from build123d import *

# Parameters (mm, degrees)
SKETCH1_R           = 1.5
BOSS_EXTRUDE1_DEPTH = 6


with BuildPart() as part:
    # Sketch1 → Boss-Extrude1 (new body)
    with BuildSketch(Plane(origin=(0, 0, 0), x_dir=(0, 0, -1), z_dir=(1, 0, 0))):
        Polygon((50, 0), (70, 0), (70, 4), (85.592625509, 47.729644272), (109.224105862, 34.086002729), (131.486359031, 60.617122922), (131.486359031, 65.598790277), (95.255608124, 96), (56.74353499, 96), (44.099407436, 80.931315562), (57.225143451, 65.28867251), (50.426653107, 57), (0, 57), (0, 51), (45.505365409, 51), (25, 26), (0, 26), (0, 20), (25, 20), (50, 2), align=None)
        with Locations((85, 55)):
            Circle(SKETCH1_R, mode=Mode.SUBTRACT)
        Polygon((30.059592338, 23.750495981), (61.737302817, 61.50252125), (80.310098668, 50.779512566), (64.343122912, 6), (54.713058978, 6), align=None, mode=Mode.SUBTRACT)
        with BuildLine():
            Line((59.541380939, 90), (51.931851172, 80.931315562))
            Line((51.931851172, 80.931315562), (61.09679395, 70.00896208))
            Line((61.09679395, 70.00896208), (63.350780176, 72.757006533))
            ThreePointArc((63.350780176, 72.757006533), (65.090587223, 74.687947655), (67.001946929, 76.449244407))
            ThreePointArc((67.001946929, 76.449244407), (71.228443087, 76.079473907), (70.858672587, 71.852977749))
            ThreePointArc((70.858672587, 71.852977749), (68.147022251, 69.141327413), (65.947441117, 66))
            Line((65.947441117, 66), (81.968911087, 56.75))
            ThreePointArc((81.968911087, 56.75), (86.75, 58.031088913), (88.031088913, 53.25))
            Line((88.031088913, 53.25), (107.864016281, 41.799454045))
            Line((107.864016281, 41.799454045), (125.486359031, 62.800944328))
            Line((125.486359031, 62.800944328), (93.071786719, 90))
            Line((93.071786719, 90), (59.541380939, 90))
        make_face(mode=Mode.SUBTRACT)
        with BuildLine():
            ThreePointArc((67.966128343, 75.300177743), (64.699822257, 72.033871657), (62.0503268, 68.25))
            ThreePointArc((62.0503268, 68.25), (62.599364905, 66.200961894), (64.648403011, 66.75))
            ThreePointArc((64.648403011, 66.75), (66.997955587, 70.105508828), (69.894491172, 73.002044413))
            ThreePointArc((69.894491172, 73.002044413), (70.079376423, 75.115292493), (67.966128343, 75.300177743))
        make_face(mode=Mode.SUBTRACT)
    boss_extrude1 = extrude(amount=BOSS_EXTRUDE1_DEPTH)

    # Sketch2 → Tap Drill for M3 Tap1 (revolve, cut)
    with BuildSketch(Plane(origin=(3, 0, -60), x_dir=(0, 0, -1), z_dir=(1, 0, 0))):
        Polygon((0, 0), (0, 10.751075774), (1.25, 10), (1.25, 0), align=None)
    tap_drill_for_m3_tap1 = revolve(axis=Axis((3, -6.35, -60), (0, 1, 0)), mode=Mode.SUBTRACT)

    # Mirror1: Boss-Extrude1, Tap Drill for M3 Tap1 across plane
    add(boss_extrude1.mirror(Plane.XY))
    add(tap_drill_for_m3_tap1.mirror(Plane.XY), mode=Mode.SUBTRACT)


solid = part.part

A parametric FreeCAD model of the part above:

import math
import FreeCAD as App
import Part
import Sketcher

V = App.Vector
Q = App.Units.Quantity

doc = App.newDocument("Part")
body = doc.addObject("PartDesign::Body", "Body")

# Sketch on YZ plane
sketch1 = body.newObject("Sketcher::SketchObject", "Sketch")
sketch1.AttachmentSupport = (doc.getObject("YZ_Plane"), [""])
sketch1.MapMode = "FlatFace"
sketch1.addGeometry(Part.LineSegment(V(0, -50, 0), V(0, -70, 0)), False)
sketch1.addGeometry(Part.LineSegment(V(0, -70, 0), V(4, -70, 0)), False)
sketch1.addGeometry(Part.LineSegment(V(4, -70, 0), V(47.7, -85.6, 0)), False)
sketch1.addGeometry(Part.LineSegment(V(47.7, -85.6, 0), V(34.1, -109.2, 0)), False)
sketch1.addGeometry(Part.LineSegment(V(34.1, -109.2, 0), V(60.6, -131.5, 0)), False)
sketch1.addGeometry(Part.LineSegment(V(60.6, -131.5, 0), V(65.6, -131.5, 0)), False)
sketch1.addGeometry(Part.LineSegment(V(65.6, -131.5, 0), V(96, -95.3, 0)), False)
sketch1.addGeometry(Part.LineSegment(V(96, -95.3, 0), V(96, -56.7, 0)), False)
sketch1.addGeometry(Part.LineSegment(V(96, -56.7, 0), V(80.9, -44.1, 0)), False)
sketch1.addGeometry(Part.LineSegment(V(80.9, -44.1, 0), V(65.3, -57.2, 0)), False)
sketch1.addGeometry(Part.LineSegment(V(65.3, -57.2, 0), V(57, -50.4, 0)), False)
sketch1.addGeometry(Part.LineSegment(V(57, -50.4, 0), V(57, 0, 0)), False)
sketch1.addGeometry(Part.LineSegment(V(57, 0, 0), V(51, 0, 0)), False)
sketch1.addGeometry(Part.LineSegment(V(51, 0, 0), V(51, -45.5, 0)), False)
sketch1.addGeometry(Part.LineSegment(V(51, -45.5, 0), V(26, -25, 0)), False)
sketch1.addGeometry(Part.LineSegment(V(26, -25, 0), V(26, 0, 0)), False)
sketch1.addGeometry(Part.LineSegment(V(26, 0, 0), V(20, 0, 0)), False)
sketch1.addGeometry(Part.LineSegment(V(20, 0, 0), V(20, -25, 0)), False)
sketch1.addGeometry(Part.LineSegment(V(20, -25, 0), V(2, -50, 0)), False)
sketch1.addGeometry(Part.LineSegment(V(2, -50, 0), V(0, -50, 0)), False)
sketch1.addGeometry(Part.LineSegment(V(6, -54.7, 0), V(23.8, -30.1, 0)), False)
sketch1.addGeometry(Part.LineSegment(V(23.8, -30.1, 0), V(61.5, -61.7, 0)), False)
sketch1.addGeometry(Part.LineSegment(V(61.5, -61.7, 0), V(50.8, -80.3, 0)), False)
sketch1.addGeometry(Part.LineSegment(V(50.8, -80.3, 0), V(6, -64.3, 0)), False)
sketch1.addGeometry(Part.LineSegment(V(6, -64.3, 0), V(6, -54.7, 0)), False)
sketch1.addGeometry(Part.ArcOfCircle(Part.Circle(V(55, -85, 0), V(0, 0, 1), 26.5), math.radians(40), math.radians(60)), False)
sketch1.addGeometry(Part.ArcOfCircle(Part.Circle(V(74.2, -68.9, 0), V(0, 0, 1), 1.5), math.radians(-140), math.radians(40)), False)
sketch1.addGeometry(Part.ArcOfCircle(Part.Circle(V(55, -85, 0), V(0, 0, 1), 23.5), math.radians(40), math.radians(60)), False)
sketch1.addGeometry(Part.ArcOfCircle(Part.Circle(V(67.5, -63.3, 0), V(0, 0, 1), 1.5), math.radians(60), math.radians(240)), False)
sketch1.addGeometry(Part.Circle(V(55, -85, 0), V(0, 0, 1), 1.5), False)
sketch1.addGeometry(Part.LineSegment(V(80.9, -51.9, 0), V(90, -59.5, 0)), False)
sketch1.addGeometry(Part.LineSegment(V(90, -59.5, 0), V(90, -93.1, 0)), False)
sketch1.addGeometry(Part.LineSegment(V(90, -93.1, 0), V(62.8, -125.5, 0)), False)
sketch1.addGeometry(Part.LineSegment(V(62.8, -125.5, 0), V(41.8, -107.9, 0)), False)
sketch1.addGeometry(Part.LineSegment(V(41.8, -107.9, 0), V(53.2, -88, 0)), False)
sketch1.addGeometry(Part.ArcOfCircle(Part.Circle(V(55, -85, 0), V(0, 0, 1), 3.5), math.radians(-120), math.radians(60)), False)
sketch1.addGeometry(Part.LineSegment(V(56.8, -82, 0), V(66, -65.9, 0)), False)
sketch1.addGeometry(Part.ArcOfCircle(Part.Circle(V(55, -85, 0), V(0, 0, 1), 22), math.radians(40), math.radians(60)), False)
sketch1.addGeometry(Part.ArcOfCircle(Part.Circle(V(74.2, -68.9, 0), V(0, 0, 1), 3), math.radians(-140), math.radians(40)), False)
sketch1.addGeometry(Part.ArcOfCircle(Part.Circle(V(55, -85, 0), V(0, 0, 1), 28), math.radians(40), math.radians(50.64)), False)
sketch1.addGeometry(Part.LineSegment(V(72.8, -63.4, 0), V(70, -61.1, 0)), False)
sketch1.addGeometry(Part.LineSegment(V(70, -61.1, 0), V(80.9, -51.9, 0)), False)
sketch1.addConstraint(Sketcher.Constraint("Coincident", 0, 2, 1, 1))
sketch1.addConstraint(Sketcher.Constraint("Coincident", 1, 2, 2, 1))
sketch1.addConstraint(Sketcher.Constraint("Coincident", 2, 2, 3, 1))
sketch1.addConstraint(Sketcher.Constraint("Coincident", 3, 2, 4, 1))
sketch1.addConstraint(Sketcher.Constraint("Coincident", 4, 2, 5, 1))
sketch1.addConstraint(Sketcher.Constraint("Coincident", 5, 2, 6, 1))
sketch1.addConstraint(Sketcher.Constraint("Coincident", 6, 2, 7, 1))
sketch1.addConstraint(Sketcher.Constraint("Coincident", 7, 2, 8, 1))
sketch1.addConstraint(Sketcher.Constraint("Coincident", 8, 2, 9, 1))
sketch1.addConstraint(Sketcher.Constraint("Coincident", 9, 2, 10, 1))
sketch1.addConstraint(Sketcher.Constraint("Coincident", 10, 2, 11, 1))
sketch1.addConstraint(Sketcher.Constraint("Coincident", 11, 2, 12, 1))
sketch1.addConstraint(Sketcher.Constraint("Coincident", 12, 2, 13, 1))
sketch1.addConstraint(Sketcher.Constraint("Coincident", 13, 2, 14, 1))
sketch1.addConstraint(Sketcher.Constraint("Coincident", 14, 2, 15, 1))
sketch1.addConstraint(Sketcher.Constraint("Coincident", 15, 2, 16, 1))
sketch1.addConstraint(Sketcher.Constraint("Coincident", 16, 2, 17, 1))
sketch1.addConstraint(Sketcher.Constraint("Coincident", 17, 2, 18, 1))
sketch1.addConstraint(Sketcher.Constraint("Coincident", 18, 2, 19, 1))
sketch1.addConstraint(Sketcher.Constraint("Coincident", 19, 2, 0, 1))
sketch1.addConstraint(Sketcher.Constraint("Coincident", 20, 2, 21, 1))
sketch1.addConstraint(Sketcher.Constraint("Coincident", 21, 2, 22, 1))
sketch1.addConstraint(Sketcher.Constraint("Coincident", 22, 2, 23, 1))
sketch1.addConstraint(Sketcher.Constraint("Coincident", 23, 2, 24, 1))
sketch1.addConstraint(Sketcher.Constraint("Coincident", 24, 2, 20, 1))
sketch1.addConstraint(Sketcher.Constraint("Tangent", 25, 1, 26, 2))
sketch1.addConstraint(Sketcher.Constraint("Tangent", 26, 1, 27, 1))
sketch1.addConstraint(Sketcher.Constraint("Tangent", 27, 2, 28, 2))
sketch1.addConstraint(Sketcher.Constraint("Tangent", 28, 1, 25, 2))
sketch1.addConstraint(Sketcher.Constraint("Coincident", 30, 2, 31, 1))
sketch1.addConstraint(Sketcher.Constraint("Coincident", 31, 2, 32, 1))
sketch1.addConstraint(Sketcher.Constraint("Coincident", 32, 2, 33, 1))
sketch1.addConstraint(Sketcher.Constraint("Coincident", 33, 2, 34, 1))
sketch1.addConstraint(Sketcher.Constraint("Coincident", 34, 2, 35, 1))
sketch1.addConstraint(Sketcher.Constraint("Coincident", 35, 2, 36, 1))
sketch1.addConstraint(Sketcher.Constraint("Coincident", 36, 2, 37, 2))
sketch1.addConstraint(Sketcher.Constraint("Tangent", 37, 1, 38, 1))
sketch1.addConstraint(Sketcher.Constraint("Tangent", 38, 2, 39, 1))
sketch1.addConstraint(Sketcher.Constraint("Tangent", 39, 2, 40, 1))
sketch1.addConstraint(Sketcher.Constraint("Coincident", 40, 2, 41, 1))
sketch1.addConstraint(Sketcher.Constraint("Coincident", 41, 2, 30, 1))
sketch1.addConstraint(Sketcher.Constraint("Vertical", 0))
sketch1.addConstraint(Sketcher.Constraint("Horizontal", 1))
sketch1.addConstraint(Sketcher.Constraint("Horizontal", 5))
sketch1.addConstraint(Sketcher.Constraint("Vertical", 7))
sketch1.addConstraint(Sketcher.Constraint("Vertical", 11))
sketch1.addConstraint(Sketcher.Constraint("Horizontal", 12))
sketch1.addConstraint(Sketcher.Constraint("Vertical", 13))
sketch1.addConstraint(Sketcher.Constraint("Vertical", 15))
sketch1.addConstraint(Sketcher.Constraint("Horizontal", 16))
sketch1.addConstraint(Sketcher.Constraint("Vertical", 17))
sketch1.addConstraint(Sketcher.Constraint("Horizontal", 19))
sketch1.addConstraint(Sketcher.Constraint("Vertical", 24))
sketch1.addConstraint(Sketcher.Constraint("Vertical", 31))
sketch1.addConstraint(Sketcher.Constraint("Coincident", 27, 3, 25, 3))
sketch1.addConstraint(Sketcher.Constraint("Coincident", 29, 3, 25, 3))
sketch1.addConstraint(Sketcher.Constraint("Coincident", 35, 3, 25, 3))
sketch1.addConstraint(Sketcher.Constraint("Coincident", 37, 3, 25, 3))
sketch1.addConstraint(Sketcher.Constraint("Coincident", 38, 3, 26, 3))
sketch1.addConstraint(Sketcher.Constraint("Coincident", 39, 3, 25, 3))
sketch1.addConstraint(Sketcher.Constraint("Equal", 28, 29))
sketch1.addConstraint(Sketcher.Constraint("PointOnObject", 0, 2, -2))
sketch1.addConstraint(Sketcher.Constraint("PointOnObject", 11, 2, -1))
sketch1.addConstraint(Sketcher.Constraint("PointOnObject", 15, 2, -1))
sketch1.addConstraint(Sketcher.Constraint("Perpendicular", 4, 6))
sketch1.addConstraint(Sketcher.Constraint("Perpendicular", 6, 8))
sketch1.addConstraint(Sketcher.Constraint("Parallel", 10, 14))
sketch1.addConstraint(Sketcher.Constraint("Parallel", 18, 20))
sketch1.addConstraint(Sketcher.Constraint("Parallel", 8, 21))
sketch1.addConstraint(Sketcher.Constraint("Parallel", 3, 22))
sketch1.addConstraint(Sketcher.Constraint("Parallel", 2, 23))
sketch1.addConstraint(Sketcher.Constraint("Parallel", 21, 30))
sketch1.addConstraint(Sketcher.Constraint("Perpendicular", 30, 32))
sketch1.addConstraint(Sketcher.Constraint("Perpendicular", 32, 33))
sketch1.addConstraint(Sketcher.Constraint("Parallel", 22, 34))
sketch1.addConstraint(Sketcher.Constraint("Parallel", 34, 36))
sketch1.addConstraint(Sketcher.Constraint("Parallel", 14, 40))
sketch1.addConstraint(Sketcher.Constraint("Parallel", 9, 41))
sketch1.addConstraint(Sketcher.Constraint("Horizontal", 14, 2, 17, 2))
sketch1.addConstraint(Sketcher.Constraint("Vertical", 8, 2, 41, 2))
sketch1.addConstraint(Sketcher.Constraint("Equal", 12, 16))
sketch1.addConstraint(Sketcher.Constraint("Diameter", 29, 3.0))
sketch1.addConstraint(Sketcher.Constraint("Radius", 37, 22.0))
sketch1.addConstraint(Sketcher.Constraint("Radius", 38, 3.0))
sketch1.addConstraint(Sketcher.Constraint("Radius", 35, 3.5))
sketch1.addConstraint(Sketcher.Constraint("DistanceX", 1, 1, 1, 2, 4.0))
sketch1.addConstraint(Sketcher.Constraint("DistanceX", 12, 2, 12, 1, 6.0))
sketch1.addConstraint(Sketcher.Constraint("DistanceX", 19, 2, 19, 1, 2.0))
sketch1.addConstraint(Sketcher.Constraint("DistanceY", 0, 2, 0, 1, 20.0))
sketch1.addConstraint(Sketcher.Constraint("DistanceY", 15, 1, 15, 2, 25.0))
sketch1.addConstraint(Sketcher.Constraint("Angle", 3, Q("-120 deg")))
sketch1.addConstraint(Sketcher.Constraint("Angle", 4, Q("-40 deg")))
sketch1.addConstraint(Sketcher.Constraint("Angle", 9, Q("-140 deg")))
sketch1.addConstraint(Sketcher.Constraint("DistanceX", -1, 1, 25, 3, 55.0))
sketch1.addConstraint(Sketcher.Constraint("DistanceY", 25, 3, -1, 1, 85.0))
sketch1.addConstraint(Sketcher.Constraint("DistanceY", 0, 2, -1, 1, 70.0))
sketch1.addConstraint(Sketcher.Constraint("DistanceX", -1, 1, 6, 2, 96.0))
sketch1.addConstraint(Sketcher.Constraint("DistanceX", -1, 1, 10, 2, 57.0))
sketch1.addConstraint(Sketcher.Constraint("DistanceX", -1, 1, 14, 2, 26.0))
sketch1.addConstraint(Sketcher.Constraint("DistanceX", -1, 1, 23, 2, 6.0))
sketch1.addConstraint(Sketcher.Constraint("DistanceX", -1, 1, 30, 2, 90.0))
sketch1.addConstraint(Sketcher.Constraint("DistanceX", -1, 1, 36, 2, 66.0))
sketch1.addConstraint(Sketcher.Constraint("DistanceY", 4, 2, 32, 2, 6.0))
sketch1.addConstraint(Sketcher.Constraint("DistanceX", -1, 1, 28, 3, 67.5))
sketch1.addConstraint(Sketcher.Constraint("DistanceX", -1, 1, 34, 2, 53.25))
sketch1.addConstraint(Sketcher.Constraint("DistanceY", 28, 3, 13, 2, 17.843999))
sketch1.addConstraint(Sketcher.Constraint("Distance", 33, 27.415499))
sketch1.addConstraint(Sketcher.Constraint("DistanceY", 22, 2, -1, 1, 80.310099))
sketch1.addConstraint(Sketcher.Constraint("DistanceY", 6, 2, 26, 3, 26.325298))
sketch1.addConstraint(Sketcher.Constraint("DistanceY", 27, 2, 21, 2, 2.9111))
sketch1.addConstraint(Sketcher.Constraint("DistanceX", 37, 1, 25, 1, 3.4472))
sketch1.addConstraint(Sketcher.Constraint("Distance", 8, 19.670771))
sketch1.addConstraint(Sketcher.Constraint("Distance", 9, 20.42002))
sketch1.addConstraint(Sketcher.Constraint("Distance", 21, 49.281769))
sketch1.addConstraint(Sketcher.Constraint("Distance", 32, 42.314219))
sketch1.addConstraint(Sketcher.Constraint("Distance", 40, 3.554181))
sketch1.addConstraint(Sketcher.Constraint("DistanceX", 5, 1, 5, 2, 4.981667))
sketch1.addConstraint(Sketcher.Constraint("DistanceY", 7, 1, 7, 2, 38.512073))
sketch1.addConstraint(Sketcher.Constraint("DistanceY", 24, 1, 24, 2, 9.630064))
sketch1.addConstraint(Sketcher.Constraint("DistanceX", -1, 1, 21, 2, 61.502521))
sketch1.addConstraint(Sketcher.Constraint("DistanceX", 3, 2, 2, 2, 13.643642))
pad1 = body.newObject("PartDesign::Pad", "Pad")
pad1.Profile = sketch1
pad1.Length = 6

# Sketch on YZ plane
sketch2 = body.newObject("Sketcher::SketchObject", "Sketch001")
sketch2.AttachmentSupport = (doc.getObject("YZ_Plane"), [""])
sketch2.MapMode = "FlatFace"
sketch2.AttachmentOffset = App.Placement(V(0, 0, 3), App.Rotation())
sketch2.addGeometry(Part.LineSegment(V(10.8, -60, 0), V(0, -60, 0)), False)
sketch2.addGeometry(Part.LineSegment(V(0, -60, 0), V(0, -61.2, 0)), False)
sketch2.addGeometry(Part.LineSegment(V(0, -61.2, 0), V(10, -61.2, 0)), False)
sketch2.addGeometry(Part.LineSegment(V(10, -61.2, 0), V(10.8, -60, 0)), False)
sketch2.addGeometry(Part.LineSegment(V(0, -60, 0), V(10.8, -60, 0)), True)  # axis
sketch2.addConstraint(Sketcher.Constraint("Coincident", 0, 2, 1, 1))
sketch2.addConstraint(Sketcher.Constraint("Coincident", 1, 2, 2, 1))
sketch2.addConstraint(Sketcher.Constraint("Coincident", 2, 2, 3, 1))
sketch2.addConstraint(Sketcher.Constraint("Coincident", 3, 2, 0, 1))
sketch2.addConstraint(Sketcher.Constraint("Horizontal", 0))
sketch2.addConstraint(Sketcher.Constraint("Vertical", 1))
sketch2.addConstraint(Sketcher.Constraint("Horizontal", 2))
sketch2.addConstraint(Sketcher.Constraint("Horizontal", 4))
sketch2.addConstraint(Sketcher.Constraint("Coincident", 4, 1, 0, 2))
sketch2.addConstraint(Sketcher.Constraint("PointOnObject", 0, 2, -2))
sketch2.addConstraint(Sketcher.Constraint("Equal", 0, 4))
sketch2.addConstraint(Sketcher.Constraint("DistanceX", 2, 1, 2, 2, 10.0))
sketch2.addConstraint(Sketcher.Constraint("Angle", 3, Q("59 deg")))
sketch2.addConstraint(Sketcher.Constraint("DistanceY", 0, 2, -1, 1, 60.0))
sketch2.addConstraint(Sketcher.Constraint("DistanceY", 1, 2, 1, 1, 1.25))
groove = body.newObject("PartDesign::Groove", "Groove")
groove.Profile = sketch2
groove.ReferenceAxis = (sketch2, ["Axis0"])
groove.Angle = 360
doc.recompute()

mirrored = body.newObject("PartDesign::Mirrored", "Mirrored")
mirrored.Originals = [pad1, groove]
mirrored.MirrorPlane = (doc.getObject("XY_Plane"), [""])
body.Tip = mirrored

doc.recompute()
